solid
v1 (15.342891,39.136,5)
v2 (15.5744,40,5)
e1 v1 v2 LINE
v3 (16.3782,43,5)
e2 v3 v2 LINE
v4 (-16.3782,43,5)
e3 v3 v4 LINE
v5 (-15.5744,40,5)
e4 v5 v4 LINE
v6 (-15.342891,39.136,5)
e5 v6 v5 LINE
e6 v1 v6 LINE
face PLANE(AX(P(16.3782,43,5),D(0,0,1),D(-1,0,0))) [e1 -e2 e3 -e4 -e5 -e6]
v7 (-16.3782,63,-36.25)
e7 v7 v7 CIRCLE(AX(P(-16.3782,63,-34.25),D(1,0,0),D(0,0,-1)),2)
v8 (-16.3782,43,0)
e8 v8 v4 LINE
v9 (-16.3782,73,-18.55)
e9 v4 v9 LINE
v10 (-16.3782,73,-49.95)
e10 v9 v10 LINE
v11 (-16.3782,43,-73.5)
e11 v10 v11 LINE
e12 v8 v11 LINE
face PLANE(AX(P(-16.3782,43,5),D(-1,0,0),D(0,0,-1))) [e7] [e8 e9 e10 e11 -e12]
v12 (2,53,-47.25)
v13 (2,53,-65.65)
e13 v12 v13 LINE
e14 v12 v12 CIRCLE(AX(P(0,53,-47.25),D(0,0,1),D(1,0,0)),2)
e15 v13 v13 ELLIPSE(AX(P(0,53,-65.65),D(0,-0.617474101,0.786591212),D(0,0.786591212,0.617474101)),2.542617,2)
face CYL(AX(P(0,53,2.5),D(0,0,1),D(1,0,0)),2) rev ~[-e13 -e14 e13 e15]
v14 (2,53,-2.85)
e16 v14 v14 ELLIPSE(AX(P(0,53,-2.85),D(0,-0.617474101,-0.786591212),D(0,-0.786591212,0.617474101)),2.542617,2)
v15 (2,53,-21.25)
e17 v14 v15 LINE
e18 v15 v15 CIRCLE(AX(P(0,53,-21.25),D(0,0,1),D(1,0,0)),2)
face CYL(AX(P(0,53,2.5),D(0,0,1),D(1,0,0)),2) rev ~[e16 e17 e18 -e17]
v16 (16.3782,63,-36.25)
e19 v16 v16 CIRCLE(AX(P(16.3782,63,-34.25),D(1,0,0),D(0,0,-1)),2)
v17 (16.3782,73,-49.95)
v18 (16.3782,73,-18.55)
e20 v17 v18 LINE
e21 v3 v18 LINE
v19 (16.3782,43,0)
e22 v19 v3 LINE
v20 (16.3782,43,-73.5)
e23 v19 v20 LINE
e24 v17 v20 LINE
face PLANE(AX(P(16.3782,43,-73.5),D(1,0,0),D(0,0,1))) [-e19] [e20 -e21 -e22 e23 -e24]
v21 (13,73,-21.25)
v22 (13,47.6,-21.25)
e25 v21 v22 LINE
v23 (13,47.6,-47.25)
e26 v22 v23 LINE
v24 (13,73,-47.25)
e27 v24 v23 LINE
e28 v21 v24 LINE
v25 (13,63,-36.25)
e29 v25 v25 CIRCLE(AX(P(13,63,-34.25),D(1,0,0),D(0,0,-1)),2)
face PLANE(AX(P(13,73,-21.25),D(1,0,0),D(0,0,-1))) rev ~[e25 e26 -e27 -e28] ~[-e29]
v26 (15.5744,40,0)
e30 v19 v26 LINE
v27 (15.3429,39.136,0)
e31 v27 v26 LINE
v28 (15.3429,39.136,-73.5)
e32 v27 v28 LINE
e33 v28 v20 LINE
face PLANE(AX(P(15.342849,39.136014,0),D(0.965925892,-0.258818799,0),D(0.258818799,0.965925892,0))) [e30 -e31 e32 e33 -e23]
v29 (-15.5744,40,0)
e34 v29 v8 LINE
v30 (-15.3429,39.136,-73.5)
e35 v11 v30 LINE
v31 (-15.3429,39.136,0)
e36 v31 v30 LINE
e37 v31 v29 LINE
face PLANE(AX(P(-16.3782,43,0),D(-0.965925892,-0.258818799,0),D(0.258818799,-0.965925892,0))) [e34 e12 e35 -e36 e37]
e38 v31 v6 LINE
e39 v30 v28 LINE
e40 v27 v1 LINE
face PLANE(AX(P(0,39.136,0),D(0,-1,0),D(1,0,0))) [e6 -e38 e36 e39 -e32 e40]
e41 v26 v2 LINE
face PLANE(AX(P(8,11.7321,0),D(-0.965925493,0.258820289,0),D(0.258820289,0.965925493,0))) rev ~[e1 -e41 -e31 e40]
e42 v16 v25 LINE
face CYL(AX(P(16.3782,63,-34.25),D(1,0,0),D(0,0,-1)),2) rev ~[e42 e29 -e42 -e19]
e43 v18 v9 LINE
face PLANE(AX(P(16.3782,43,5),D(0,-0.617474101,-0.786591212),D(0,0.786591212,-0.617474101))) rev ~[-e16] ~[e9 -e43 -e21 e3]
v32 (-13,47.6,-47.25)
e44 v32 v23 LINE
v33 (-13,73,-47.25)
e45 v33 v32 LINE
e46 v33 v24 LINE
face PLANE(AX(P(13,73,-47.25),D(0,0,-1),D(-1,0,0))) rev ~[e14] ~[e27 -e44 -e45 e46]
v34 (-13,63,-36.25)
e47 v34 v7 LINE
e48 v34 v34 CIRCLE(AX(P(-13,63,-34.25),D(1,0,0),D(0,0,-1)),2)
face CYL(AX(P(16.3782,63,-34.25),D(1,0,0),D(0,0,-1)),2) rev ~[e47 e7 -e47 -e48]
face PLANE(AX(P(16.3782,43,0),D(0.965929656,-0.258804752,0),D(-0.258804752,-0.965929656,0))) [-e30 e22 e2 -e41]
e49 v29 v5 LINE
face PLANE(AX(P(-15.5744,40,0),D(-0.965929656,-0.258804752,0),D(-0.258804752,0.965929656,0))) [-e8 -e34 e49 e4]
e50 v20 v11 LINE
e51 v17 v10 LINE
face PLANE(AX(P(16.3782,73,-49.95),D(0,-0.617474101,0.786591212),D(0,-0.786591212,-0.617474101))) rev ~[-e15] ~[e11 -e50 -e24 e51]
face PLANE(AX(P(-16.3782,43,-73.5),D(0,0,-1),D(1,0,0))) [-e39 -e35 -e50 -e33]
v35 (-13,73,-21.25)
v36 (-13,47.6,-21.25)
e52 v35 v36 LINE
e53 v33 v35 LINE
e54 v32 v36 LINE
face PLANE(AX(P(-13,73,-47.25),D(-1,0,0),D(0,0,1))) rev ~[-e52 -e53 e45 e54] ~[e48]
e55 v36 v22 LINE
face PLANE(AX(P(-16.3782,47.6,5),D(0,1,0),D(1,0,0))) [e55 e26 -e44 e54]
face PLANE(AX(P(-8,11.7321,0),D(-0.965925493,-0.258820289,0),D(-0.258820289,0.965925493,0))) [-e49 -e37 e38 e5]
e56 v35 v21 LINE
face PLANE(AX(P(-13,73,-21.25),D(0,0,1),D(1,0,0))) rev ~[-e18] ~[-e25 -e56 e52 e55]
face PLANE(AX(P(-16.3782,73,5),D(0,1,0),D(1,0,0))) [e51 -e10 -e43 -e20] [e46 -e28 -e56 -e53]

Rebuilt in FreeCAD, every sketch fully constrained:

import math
import FreeCAD as App
import Part
import Sketcher
Q = App.Units.Quantity

doc = App.newDocument("Part")
params = doc.addObject("Spreadsheet::Sheet", "Params")
for row, (alias, value) in enumerate([
    ("sketch1_diameter", "4 mm"),
    ("sketch1_radius", "8 mm"),
    ("pad1_length", "5 mm"),
    ("sketch2_diameter", "13.25 mm"),
    ("pocket1_length", "2 mm"),
    ("pad2_length", "73.5 mm"),
    ("sketch4_height", "78.5 mm"),
    ("pad3_length", "30 mm"),
    ("sketch5_width", "30 mm"),
    ("sketch5_height", "23.55 mm"),
    ("pocket2_length", "32.7564 mm"),
    ("sketch6_width", "26 mm"),
    ("pocket3_length", "25.4 mm"),
    ("sketch7_diameter", "4 mm"),
    ("sketch8_diameter", "4 mm"),
    ("pocket5_length", "32.7564 mm"),
    ("sketch9_height", "5 mm"),
], start=1):
    params.set(f"A{row}", alias)
    params.set(f"B{row}", "=" + value)
    params.setAlias(f"B{row}", alias)

body = doc.addObject("PartDesign::Body", "Body")

sketch1 = body.newObject("Sketcher::SketchObject", "Sketch")
sketch1.AttachmentSupport = (doc.getObject("XY_Plane"), [""])
sketch1.MapMode = "FlatFace"
sketch1.addGeometry([
    Part.LineSegment(App.Vector(8, 0, 0), App.Vector(8, 11.7, 0)),
    Part.LineSegment(App.Vector(8, 11.7, 0), App.Vector(15.6, 40, 0)),
    Part.LineSegment(App.Vector(15.6, 40, 0), App.Vector(16.4, 43, 0)),
    Part.LineSegment(App.Vector(16.4, 43, 0), App.Vector(-16.4, 43, 0)),
    Part.LineSegment(App.Vector(-16.4, 43, 0), App.Vector(-15.6, 40, 0)),
    Part.LineSegment(App.Vector(-15.6, 40, 0), App.Vector(-8, 11.7, 0)),
    Part.LineSegment(App.Vector(-8, 11.7, 0), App.Vector(-8, 0, 0)),
    Part.ArcOfCircle(Part.Circle(App.Vector(0, 0, 0), App.Vector(0, 0, 1), 8), math.radians(180), math.radians(360)),
    Part.Circle(App.Vector(-4, 0, 0), App.Vector(0, 0, 1), 2),
    Part.Circle(App.Vector(0, -4, 0), App.Vector(0, 0, 1), 2),
    Part.Circle(App.Vector(4, 0, 0), App.Vector(0, 0, 1), 2),
    Part.Circle(App.Vector(0, 4, 0), App.Vector(0, 0, 1), 2),
], False)
sketch1.addConstraint([
    Sketcher.Constraint("Coincident", 0, 2, 1, 1),
    Sketcher.Constraint("Coincident", 1, 2, 2, 1),
    Sketcher.Constraint("Coincident", 2, 2, 3, 1),
    Sketcher.Constraint("Coincident", 3, 2, 4, 1),
    Sketcher.Constraint("Coincident", 4, 2, 5, 1),
    Sketcher.Constraint("Coincident", 5, 2, 6, 1),
    Sketcher.Constraint("Tangent", 6, 2, 7, 1),
    Sketcher.Constraint("Tangent", 7, 2, 0, 1),
    Sketcher.Constraint("Vertical", 0),
    Sketcher.Constraint("Horizontal", 3),
    Sketcher.Constraint("Vertical", 6),
    Sketcher.Constraint("Coincident", 7, 3, -1, 1),
    Sketcher.Constraint("Equal", 8, 9),
    Sketcher.Constraint("Equal", 9, 10),
    Sketcher.Constraint("Equal", 10, 11),
    Sketcher.Constraint("Symmetric", 8, 3, 10, 3, -1, 1),
    Sketcher.Constraint("Symmetric", 9, 3, 11, 3, -1, 1),
    Sketcher.Constraint("Symmetric", 1, 2, 4, 2, -2),
    Sketcher.Constraint("PointOnObject", 8, 3, -1),
    Sketcher.Constraint("PointOnObject", 9, 3, -2),
    Sketcher.Constraint("Parallel", 1, 2),
    Sketcher.Constraint("Parallel", 4, 5),
    Sketcher.Constraint("Horizontal", 0, 2, 5, 2),
    Sketcher.Constraint("Diameter", 8, Q("4 mm")),
    Sketcher.Constraint("DistanceX", 8, 3, -1, 1, Q("4 mm")),
    Sketcher.Constraint("DistanceY", 9, 3, -1, 1, Q("4 mm")),
    Sketcher.Constraint("Radius", 7, Q("8 mm")),
    Sketcher.Constraint("Angle", 1, Q("75 deg")),
    Sketcher.Constraint("DistanceY", -1, 1, 1, 2, Q("40 mm")),
    Sketcher.Constraint("DistanceY", -1, 1, 2, 2, Q("43 mm")),
    Sketcher.Constraint("DistanceY", 0, 1, 0, 2, Q("11.732 mm")),
])
sketch1.setExpression("Constraints[23]", "Params.sketch1_diameter")
sketch1.setExpression("Constraints[26]", "Params.sketch1_radius")
pad1 = body.newObject("PartDesign::Pad", "Pad")
pad1.Profile = sketch1
pad1.setExpression("Length", "Params.pad1_length")

sketch2 = body.newObject("Sketcher::SketchObject", "Sketch001")
sketch2.AttachmentSupport = (doc.getObject("XY_Plane"), [""])
sketch2.MapMode = "FlatFace"
sketch2.addGeometry(Part.Circle(App.Vector(0, 0, 0), App.Vector(0, 0, 1), 7), False)
sketch2.addConstraint([
    Sketcher.Constraint("Coincident", 0, 3, -1, 1),
    Sketcher.Constraint("Diameter", 0, Q("13.25 mm")),
])
sketch2.setExpression("Constraints[1]", "Params.sketch2_diameter")
pocket1 = body.newObject("PartDesign::Pocket", "Pocket")
pocket1.Profile = sketch2
pocket1.setExpression("Length", "Params.pocket1_length")
pocket1.Reversed = True

sketch3 = body.newObject("Sketcher::SketchObject", "Sketch002")
sketch3.AttachmentSupport = (doc.getObject("XY_Plane"), [""])
sketch3.MapMode = "FlatFace"
sketch3.addGeometry([
    Part.LineSegment(App.Vector(16.4, 43, 0), App.Vector(15.3, 39.1, 0)),
    Part.LineSegment(App.Vector(15.3, 39.1, 0), App.Vector(-15.3, 39.1, 0)),
    Part.LineSegment(App.Vector(-15.3, 39.1, 0), App.Vector(-16.4, 43, 0)),
    Part.LineSegment(App.Vector(-16.4, 43, 0), App.Vector(16.4, 43, 0)),
], False)
sketch3.addConstraint([
    Sketcher.Constraint("Coincident", 0, 2, 1, 1),
    Sketcher.Constraint("Coincident", 1, 2, 2, 1),
    Sketcher.Constraint("Coincident", 2, 2, 3, 1),
    Sketcher.Constraint("Coincident", 3, 2, 0, 1),
    Sketcher.Constraint("Horizontal", 1),
    Sketcher.Constraint("Horizontal", 3),
    Sketcher.Constraint("Equal", 0, 2),
    Sketcher.Constraint("Angle", 0, Q("-105 deg")),
    Sketcher.Constraint("DistanceY", -1, 1, 2, 2, Q("43 mm")),
    Sketcher.Constraint("DistanceX", 1, 2, 1, 1, Q("30.6858 mm")),
    Sketcher.Constraint("DistanceX", 3, 1, 3, 2, Q("32.7564 mm")),
    Sketcher.Constraint("DistanceX", 1, 2, -1, 1, Q("15.343 mm")),
])
pad2 = body.newObject("PartDesign::Pad", "Pad001")
pad2.Profile = sketch3
pad2.setExpression("Length", "Params.pad2_length")
pad2.Reversed = True

sketch4 = body.newObject("Sketcher::SketchObject", "Sketch003")
sketch4.AttachmentSupport = (doc.getObject("XZ_Plane"), [""])
sketch4.MapMode = "FlatFace"
sketch4.AttachmentOffset = App.Placement(App.Vector(0, 0, -43), App.Rotation())
sketch4.addGeometry([
    Part.LineSegment(App.Vector(16, -74, 0), App.Vector(-16, -74, 0)),
    Part.LineSegment(App.Vector(-16, -74, 0), App.Vector(-16, 5, 0)),
    Part.LineSegment(App.Vector(-16, 5, 0), App.Vector(16, 5, 0)),
    Part.LineSegment(App.Vector(16, 5, 0), App.Vector(16, -74, 0)),
], False)
sketch4.addConstraint([
    Sketcher.Constraint("Coincident", 0, 2, 1, 1),
    Sketcher.Constraint("Coincident", 1, 2, 2, 1),
    Sketcher.Constraint("Coincident", 2, 2, 3, 1),
    Sketcher.Constraint("Coincident", 3, 2, 0, 1),
    Sketcher.Constraint("Horizontal", 0),
    Sketcher.Constraint("Vertical", 1),
    Sketcher.Constraint("Horizontal", 2),
    Sketcher.Constraint("Vertical", 3),
    Sketcher.Constraint("DistanceY", 1, 1, 1, 2, Q("78.5 mm")),
    Sketcher.Constraint("DistanceY", -1, 1, 1, 2, Q("5 mm")),
    Sketcher.Constraint("DistanceX", 0, 2, 0, 1, Q("32.7564 mm")),
    Sketcher.Constraint("DistanceX", 0, 2, -1, 1, Q("16.3782 mm")),
])
sketch4.setExpression("Constraints[8]", "Params.sketch4_height")
pad3 = body.newObject("PartDesign::Pad", "Pad002")
pad3.Profile = sketch4
pad3.setExpression("Length", "Params.pad3_length")
pad3.Reversed = True

sketch5 = body.newObject("Sketcher::SketchObject", "Sketch004")
sketch5.AttachmentSupport = (doc.getObject("YZ_Plane"), [""])
sketch5.MapMode = "FlatFace"
sketch5.AttachmentOffset = App.Placement(App.Vector(0, 0, 16.3782), App.Rotation())
sketch5.addGeometry([
    Part.LineSegment(App.Vector(73, -74, 0), App.Vector(73, -50, 0)),
    Part.LineSegment(App.Vector(73, -50, 0), App.Vector(43, -74, 0)),
    Part.LineSegment(App.Vector(43, -74, 0), App.Vector(73, -74, 0)),
    Part.LineSegment(App.Vector(73, -19, 0), App.Vector(73, 5, 0)),
    Part.LineSegment(App.Vector(73, 5, 0), App.Vector(43, 5, 0)),
    Part.LineSegment(App.Vector(43, 5, 0), App.Vector(73, -19, 0)),
], False)
sketch5.addConstraint([
    Sketcher.Constraint("Coincident", 0, 2, 1, 1),
    Sketcher.Constraint("Coincident", 1, 2, 2, 1),
    Sketcher.Constraint("Coincident", 2, 2, 0, 1),
    Sketcher.Constraint("Coincident", 3, 2, 4, 1),
    Sketcher.Constraint("Coincident", 4, 2, 5, 1),
    Sketcher.Constraint("Coincident", 5, 2, 3, 1),
    Sketcher.Constraint("Vertical", 0),
    Sketcher.Constraint("Horizontal", 2),
    Sketcher.Constraint("Vertical", 3),
    Sketcher.Constraint("Horizontal", 4),
    Sketcher.Constraint("Vertical", 2, 2, 3, 2),
    Sketcher.Constraint("Vertical", 1, 2, 4, 2),
    Sketcher.Constraint("Equal", 0, 3),
    Sketcher.Constraint("DistanceX", 2, 1, 2, 2, Q("30 mm")),
    Sketcher.Constraint("DistanceX", -1, 1, 0, 2, Q("73 mm")),
    Sketcher.Constraint("DistanceY", -1, 1, 3, 2, Q("5 mm")),
    Sketcher.Constraint("DistanceY", 0, 1, 0, 2, Q("23.55 mm")),
    Sketcher.Constraint("DistanceY", 1, 2, -1, 1, Q("73.5 mm")),
])
sketch5.setExpression("Constraints[13]", "Params.sketch5_width")
sketch5.setExpression("Constraints[16]", "Params.sketch5_height")
pocket2 = body.newObject("PartDesign::Pocket", "Pocket001")
pocket2.Profile = sketch5
pocket2.setExpression("Length", "Params.pocket2_length")

sketch6 = body.newObject("Sketcher::SketchObject", "Sketch005")
sketch6.AttachmentSupport = (doc.getObject("XZ_Plane"), [""])
sketch6.MapMode = "FlatFace"
sketch6.AttachmentOffset = App.Placement(App.Vector(0, 0, -73), App.Rotation())
sketch6.addGeometry([
    Part.LineSegment(App.Vector(13, -47, 0), App.Vector(-13, -47, 0)),
    Part.LineSegment(App.Vector(-13, -47, 0), App.Vector(-13, -21, 0)),
    Part.LineSegment(App.Vector(-13, -21, 0), App.Vector(13, -21, 0)),
    Part.LineSegment(App.Vector(13, -21, 0), App.Vector(13, -47, 0)),
], False)
sketch6.addConstraint([
    Sketcher.Constraint("Coincident", 0, 2, 1, 1),
    Sketcher.Constraint("Coincident", 1, 2, 2, 1),
    Sketcher.Constraint("Coincident", 2, 2, 3, 1),
    Sketcher.Constraint("Coincident", 3, 2, 0, 1),
    Sketcher.Constraint("Horizontal", 0),
    Sketcher.Constraint("Vertical", 1),
    Sketcher.Constraint("Horizontal", 2),
    Sketcher.Constraint("Vertical", 3),
    Sketcher.Constraint("Equal", 2, 1),
    Sketcher.Constraint("DistanceX", 0, 2, 0, 1, Q("26 mm")),
    Sketcher.Constraint("DistanceX", 0, 2, -1, 1, Q("13 mm")),
    Sketcher.Constraint("DistanceY", 0, 2, -1, 1, Q("47.25 mm")),
])
sketch6.setExpression("Constraints[9]", "Params.sketch6_width")
pocket3 = body.newObject("PartDesign::Pocket", "Pocket002")
pocket3.Profile = sketch6
pocket3.setExpression("Length", "Params.pocket3_length")
pocket3.Reversed = True

sketch7 = body.newObject("Sketcher::SketchObject", "Sketch006")
sketch7.AttachmentSupport = (doc.getObject("XY_Plane"), [""])
sketch7.MapMode = "FlatFace"
sketch7.AttachmentOffset = App.Placement(App.Vector(0, 0, 2.5), App.Rotation())
sketch7.addGeometry(Part.Circle(App.Vector(0, 53, 0), App.Vector(0, 0, 1), 2), False)
sketch7.addConstraint([
    Sketcher.Constraint("PointOnObject", 0, 3, -2),
    Sketcher.Constraint("Diameter", 0, Q("4 mm")),
    Sketcher.Constraint("DistanceY", -1, 1, 0, 3, Q("53 mm")),
])
sketch7.setExpression("Constraints[1]", "Params.sketch7_diameter")
pocket4 = body.newObject("PartDesign::Pocket", "Pocket003")
pocket4.Profile = sketch7
pocket4.Type = "ThroughAll"

sketch8 = body.newObject("Sketcher::SketchObject", "Sketch007")
sketch8.AttachmentSupport = (doc.getObject("YZ_Plane"), [""])
sketch8.MapMode = "FlatFace"
sketch8.AttachmentOffset = App.Placement(App.Vector(0, 0, 16.3782), App.Rotation())
sketch8.addGeometry(Part.Circle(App.Vector(63, -34.2, 0), App.Vector(0, 0, 1), 2), False)
sketch8.addConstraint([
    Sketcher.Constraint("Diameter", 0, Q("4 mm")),
    Sketcher.Constraint("DistanceX", -1, 1, 0, 3, Q("63 mm")),
    Sketcher.Constraint("DistanceY", 0, 3, -1, 1, Q("34.25 mm")),
])
sketch8.setExpression("Constraints[0]", "Params.sketch8_diameter")
pocket5 = body.newObject("PartDesign::Pocket", "Pocket004")
pocket5.Profile = sketch8
pocket5.setExpression("Length", "Params.pocket5_length")

sketch9 = body.newObject("Sketcher::SketchObject", "Sketch008")
sketch9.AttachmentSupport = (doc.getObject("YZ_Plane"), [""])
sketch9.MapMode = "FlatFace"
sketch9.AttachmentOffset = App.Placement(App.Vector(0, 0, 8), App.Rotation())
sketch9.addGeometry([
    Part.LineSegment(App.Vector(39, 5, 0), App.Vector(-8, 5, 0)),
    Part.LineSegment(App.Vector(-8, 5, 0), App.Vector(-8, 0, 0)),
    Part.LineSegment(App.Vector(-8, 0, 0), App.Vector(39, 0, 0)),
    Part.LineSegment(App.Vector(39, 0, 0), App.Vector(39, 5, 0)),
], False)
sketch9.addConstraint([
    Sketcher.Constraint("Coincident", 0, 2, 1, 1),
    Sketcher.Constraint("Coincident", 1, 2, 2, 1),
    Sketcher.Constraint("Coincident", 2, 2, 3, 1),
    Sketcher.Constraint("Coincident", 3, 2, 0, 1),
    Sketcher.Constraint("Horizontal", 0),
    Sketcher.Constraint("Vertical", 1),
    Sketcher.Constraint("Horizontal", 2),
    Sketcher.Constraint("Vertical", 3),
    Sketcher.Constraint("PointOnObject", 1, 2, -1),
    Sketcher.Constraint("DistanceY", 1, 2, 1, 1, Q("5 mm")),
    Sketcher.Constraint("DistanceX", 0, 2, -1, 1, Q("8 mm")),
    Sketcher.Constraint("DistanceX", 0, 2, 0, 1, Q("47.136 mm")),
])
sketch9.setExpression("Constraints[9]", "Params.sketch9_height")
pocket6 = body.newObject("PartDesign::Pocket", "Pocket005")
pocket6.Profile = sketch9
pocket6.Type = "ThroughAll"
pocket6.Midplane = True

doc.recompute()
